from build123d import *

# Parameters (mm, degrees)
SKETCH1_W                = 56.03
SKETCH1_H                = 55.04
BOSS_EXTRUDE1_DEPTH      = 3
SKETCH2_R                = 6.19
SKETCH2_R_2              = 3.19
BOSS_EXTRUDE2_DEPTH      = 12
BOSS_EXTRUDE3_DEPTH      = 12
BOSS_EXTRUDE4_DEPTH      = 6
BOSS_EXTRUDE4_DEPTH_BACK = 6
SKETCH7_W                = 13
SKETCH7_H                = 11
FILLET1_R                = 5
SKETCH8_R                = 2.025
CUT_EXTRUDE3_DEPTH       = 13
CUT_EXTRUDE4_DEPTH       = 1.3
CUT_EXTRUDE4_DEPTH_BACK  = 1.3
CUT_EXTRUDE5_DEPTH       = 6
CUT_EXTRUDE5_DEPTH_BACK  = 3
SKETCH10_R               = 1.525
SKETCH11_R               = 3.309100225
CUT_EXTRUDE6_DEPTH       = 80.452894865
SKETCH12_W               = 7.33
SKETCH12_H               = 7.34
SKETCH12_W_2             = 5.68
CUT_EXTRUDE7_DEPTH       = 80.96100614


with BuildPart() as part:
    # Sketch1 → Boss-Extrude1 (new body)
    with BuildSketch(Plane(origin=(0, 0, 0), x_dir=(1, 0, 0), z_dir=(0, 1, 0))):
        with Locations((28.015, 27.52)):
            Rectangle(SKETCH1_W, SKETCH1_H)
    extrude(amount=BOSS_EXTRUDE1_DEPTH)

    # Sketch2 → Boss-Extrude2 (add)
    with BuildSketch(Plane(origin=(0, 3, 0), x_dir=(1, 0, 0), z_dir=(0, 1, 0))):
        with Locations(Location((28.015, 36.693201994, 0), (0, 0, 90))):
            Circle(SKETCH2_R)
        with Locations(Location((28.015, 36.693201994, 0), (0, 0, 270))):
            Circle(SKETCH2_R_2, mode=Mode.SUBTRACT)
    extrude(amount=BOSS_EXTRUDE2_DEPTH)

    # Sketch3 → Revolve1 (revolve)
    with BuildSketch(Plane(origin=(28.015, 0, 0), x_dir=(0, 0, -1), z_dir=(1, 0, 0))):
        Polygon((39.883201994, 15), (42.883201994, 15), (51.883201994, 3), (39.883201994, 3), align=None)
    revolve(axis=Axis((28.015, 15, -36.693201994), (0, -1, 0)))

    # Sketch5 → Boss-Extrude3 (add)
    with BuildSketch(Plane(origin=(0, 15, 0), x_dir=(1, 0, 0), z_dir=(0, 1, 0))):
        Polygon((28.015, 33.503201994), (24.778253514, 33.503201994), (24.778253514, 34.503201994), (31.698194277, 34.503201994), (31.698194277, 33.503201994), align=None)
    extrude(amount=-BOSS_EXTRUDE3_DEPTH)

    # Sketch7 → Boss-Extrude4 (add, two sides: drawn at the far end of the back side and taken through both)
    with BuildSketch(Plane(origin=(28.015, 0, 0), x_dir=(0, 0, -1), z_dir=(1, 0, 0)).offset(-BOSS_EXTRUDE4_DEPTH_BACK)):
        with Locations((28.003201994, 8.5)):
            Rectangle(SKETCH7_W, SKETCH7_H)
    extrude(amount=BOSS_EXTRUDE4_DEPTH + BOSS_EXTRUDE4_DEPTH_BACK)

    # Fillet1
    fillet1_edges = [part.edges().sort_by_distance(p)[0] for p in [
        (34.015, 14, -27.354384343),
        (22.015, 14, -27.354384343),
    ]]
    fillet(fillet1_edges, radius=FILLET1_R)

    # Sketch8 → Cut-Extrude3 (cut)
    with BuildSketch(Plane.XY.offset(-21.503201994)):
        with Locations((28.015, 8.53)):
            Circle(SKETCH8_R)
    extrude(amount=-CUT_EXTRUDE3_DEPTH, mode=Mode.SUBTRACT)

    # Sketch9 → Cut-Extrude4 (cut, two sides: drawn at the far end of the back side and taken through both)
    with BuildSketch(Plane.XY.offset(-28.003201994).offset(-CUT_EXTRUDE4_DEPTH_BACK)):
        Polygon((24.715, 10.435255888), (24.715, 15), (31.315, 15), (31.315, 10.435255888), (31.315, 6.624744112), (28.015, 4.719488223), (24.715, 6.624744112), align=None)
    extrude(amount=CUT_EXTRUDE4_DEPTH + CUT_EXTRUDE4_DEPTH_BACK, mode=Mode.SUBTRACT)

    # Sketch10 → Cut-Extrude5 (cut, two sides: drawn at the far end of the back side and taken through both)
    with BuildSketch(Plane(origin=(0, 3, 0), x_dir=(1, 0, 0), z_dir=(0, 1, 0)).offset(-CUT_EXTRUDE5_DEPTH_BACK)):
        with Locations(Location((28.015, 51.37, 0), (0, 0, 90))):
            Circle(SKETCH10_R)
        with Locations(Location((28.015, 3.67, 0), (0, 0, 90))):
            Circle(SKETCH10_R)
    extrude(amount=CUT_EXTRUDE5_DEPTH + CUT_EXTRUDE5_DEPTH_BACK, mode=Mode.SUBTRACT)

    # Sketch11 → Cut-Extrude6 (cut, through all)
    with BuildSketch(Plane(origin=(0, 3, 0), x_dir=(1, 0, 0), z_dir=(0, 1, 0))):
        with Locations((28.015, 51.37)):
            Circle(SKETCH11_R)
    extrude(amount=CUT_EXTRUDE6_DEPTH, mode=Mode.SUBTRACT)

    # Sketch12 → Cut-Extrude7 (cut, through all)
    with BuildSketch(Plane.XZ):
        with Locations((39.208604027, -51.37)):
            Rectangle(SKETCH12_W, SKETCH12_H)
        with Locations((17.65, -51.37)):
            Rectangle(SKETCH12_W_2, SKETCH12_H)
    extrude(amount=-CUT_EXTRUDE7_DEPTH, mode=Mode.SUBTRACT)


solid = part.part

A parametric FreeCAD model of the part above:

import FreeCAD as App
import Part
import Sketcher
Q = App.Units.Quantity


def edges_at(feature, points):
    """Names of the edges that pass closest to the given points."""
    edges = feature.Shape.Edges
    near = lambda p: min(range(len(edges)), key=lambda i: edges[i].distToShape(Part.Vertex(*p))[0])
    return sorted({f"Edge{near(p) + 1}" for p in points})

doc = App.newDocument("Part")
body = doc.addObject("PartDesign::Body", "Body")

# Sketch on XZ plane
sketch1 = body.newObject("Sketcher::SketchObject", "Sketch")
sketch1.AttachmentSupport = (doc.getObject("XZ_Plane"), [""])
sketch1.MapMode = "FlatFace"
sketch1.addGeometry([
    Part.LineSegment(App.Vector(0, -55, 0), App.Vector(0, 0, 0)),
    Part.LineSegment(App.Vector(0, 0, 0), App.Vector(56, 0, 0)),
    Part.LineSegment(App.Vector(56, 0, 0), App.Vector(56, -55, 0)),
    Part.LineSegment(App.Vector(56, -55, 0), App.Vector(0, -55, 0)),
], False)
sketch1.addConstraint([
    Sketcher.Constraint("Coincident", 0, 2, 1, 1),
    Sketcher.Constraint("Coincident", 1, 2, 2, 1),
    Sketcher.Constraint("Coincident", 2, 2, 3, 1),
    Sketcher.Constraint("Coincident", 3, 2, 0, 1),
    Sketcher.Constraint("Vertical", 0),
    Sketcher.Constraint("Horizontal", 1),
    Sketcher.Constraint("Vertical", 2),
    Sketcher.Constraint("Horizontal", 3),
    Sketcher.Constraint("Coincident", 0, 2, -1, 1),
    Sketcher.Constraint("DistanceX", 1, 1, 1, 2, Q("56.03 mm")),
    Sketcher.Constraint("DistanceY", 0, 1, 0, 2, Q("55.04 mm")),
])
pad1 = body.newObject("PartDesign::Pad", "Pad")
pad1.Profile = sketch1
pad1.Length = 3
pad1.Reversed = True

# Sketch on XZ plane
sketch2 = body.newObject("Sketcher::SketchObject", "Sketch001")
sketch2.AttachmentSupport = (doc.getObject("XZ_Plane"), [""])
sketch2.MapMode = "FlatFace"
sketch2.AttachmentOffset = App.Placement(App.Vector(0, 0, -3), App.Rotation())
sketch2.addGeometry([
    Part.Circle(App.Vector(28, -36.7, 0), App.Vector(0, 0, 1), 6.2),
    Part.Circle(App.Vector(28, -36.7, 0), App.Vector(0, 0, 1), 3.2),
], False)
sketch2.addConstraint([
    Sketcher.Constraint("Coincident", 1, 3, 0, 3),
    Sketcher.Constraint("Diameter", 0, Q("12.38 mm")),
    Sketcher.Constraint("Diameter", 1, Q("6.38 mm")),
    Sketcher.Constraint("DistanceX", -1, 1, 0, 3, Q("28.015 mm")),
    Sketcher.Constraint("DistanceY", 0, 3, -1, 1, Q("36.693202 mm")),
])
pad2 = body.newObject("PartDesign::Pad", "Pad001")
pad2.Profile = sketch2
pad2.Length = 12
pad2.Reversed = True

# Sketch on YZ plane
sketch3 = body.newObject("Sketcher::SketchObject", "Sketch002")
sketch3.AttachmentSupport = (doc.getObject("YZ_Plane"), [""])
sketch3.MapMode = "FlatFace"
sketch3.AttachmentOffset = App.Placement(App.Vector(0, 0, 28.015), App.Rotation())
sketch3.addGeometry([
    Part.LineSegment(App.Vector(15, -42.9, 0), App.Vector(15, -39.9, 0)),
    Part.LineSegment(App.Vector(15, -39.9, 0), App.Vector(3, -39.9, 0)),
    Part.LineSegment(App.Vector(3, -39.9, 0), App.Vector(3, -51.9, 0)),
    Part.LineSegment(App.Vector(3, -51.9, 0), App.Vector(15, -42.9, 0)),
], False)
sketch3.addGeometry(Part.LineSegment(App.Vector(15, -36.7, 0), App.Vector(3, -36.7, 0)), True)  # axis
sketch3.addConstraint([
    Sketcher.Constraint("Coincident", 0, 2, 1, 1),
    Sketcher.Constraint("Coincident", 1, 2, 2, 1),
    Sketcher.Constraint("Coincident", 2, 2, 3, 1),
    Sketcher.Constraint("Coincident", 3, 2, 0, 1),
    Sketcher.Constraint("Vertical", 0),
    Sketcher.Constraint("Horizontal", 1),
    Sketcher.Constraint("Vertical", 2),
    Sketcher.Constraint("Horizontal", 4),
    Sketcher.Constraint("Vertical", 3, 2, 4, 1),
    Sketcher.Constraint("Vertical", 2, 2, 4, 2),
    Sketcher.Constraint("Equal", 4, 2),
    Sketcher.Constraint("DistanceX", 1, 2, 1, 1, Q("12 mm")),
    Sketcher.Constraint("DistanceY", 0, 1, 0, 2, Q("3 mm")),
    Sketcher.Constraint("DistanceX", -1, 1, 0, 2, Q("15 mm")),
    Sketcher.Constraint("DistanceY", 0, 2, 4, 1, Q("3.19 mm")),
    Sketcher.Constraint("DistanceY", 0, 2, -1, 1, Q("39.883202 mm")),
])
revolution = body.newObject("PartDesign::Revolution", "Revolution")
revolution.Profile = sketch3
revolution.ReferenceAxis = (sketch3, ["Axis0"])
revolution.Angle = 360

# Sketch on XZ plane
sketch4 = body.newObject("Sketcher::SketchObject", "Sketch003")
sketch4.AttachmentSupport = (doc.getObject("XZ_Plane"), [""])
sketch4.MapMode = "FlatFace"
sketch4.AttachmentOffset = App.Placement(App.Vector(0, 0, -15), App.Rotation())
sketch4.addGeometry([
    Part.LineSegment(App.Vector(24.8, -33.5, 0), App.Vector(31.7, -33.5, 0)),
    Part.LineSegment(App.Vector(31.7, -33.5, 0), App.Vector(31.7, -34.5, 0)),
    Part.LineSegment(App.Vector(31.7, -34.5, 0), App.Vector(24.8, -34.5, 0)),
    Part.LineSegment(App.Vector(24.8, -34.5, 0), App.Vector(24.8, -33.5, 0)),
], False)
sketch4.addConstraint([
    Sketcher.Constraint("Coincident", 0, 2, 1, 1),
    Sketcher.Constraint("Coincident", 1, 2, 2, 1),
    Sketcher.Constraint("Coincident", 2, 2, 3, 1),
    Sketcher.Constraint("Coincident", 3, 2, 0, 1),
    Sketcher.Constraint("Horizontal", 0),
    Sketcher.Constraint("Vertical", 1),
    Sketcher.Constraint("Horizontal", 2),
    Sketcher.Constraint("Vertical", 3),
    Sketcher.Constraint("DistanceY", 1, 2, 1, 1, Q("1 mm")),
    Sketcher.Constraint("DistanceX", 0, 1, 0, 2, Q("6.919941 mm")),
    Sketcher.Constraint("DistanceY", 0, 2, -1, 1, Q("33.503202 mm")),
    Sketcher.Constraint("DistanceX", -1, 1, 0, 2, Q("31.698194 mm")),
])
pad3 = body.newObject("PartDesign::Pad", "Pad002")
pad3.Profile = sketch4
pad3.Length = 12

# Sketch on YZ plane
sketch5 = body.newObject("Sketcher::SketchObject", "Sketch004")
sketch5.AttachmentSupport = (doc.getObject("YZ_Plane"), [""])
sketch5.MapMode = "FlatFace"
sketch5.AttachmentOffset = App.Placement(App.Vector(0, 0, 28.015), App.Rotation())
sketch5.addGeometry([
    Part.LineSegment(App.Vector(14, -22, 0), App.Vector(3, -22, 0)),
    Part.LineSegment(App.Vector(3, -22, 0), App.Vector(3, -35, 0)),
    Part.LineSegment(App.Vector(3, -35, 0), App.Vector(14, -35, 0)),
    Part.LineSegment(App.Vector(14, -35, 0), App.Vector(14, -22, 0)),
], False)
sketch5.addConstraint([
    Sketcher.Constraint("Coincident", 0, 2, 1, 1),
    Sketcher.Constraint("Coincident", 1, 2, 2, 1),
    Sketcher.Constraint("Coincident", 2, 2, 3, 1),
    Sketcher.Constraint("Coincident", 3, 2, 0, 1),
    Sketcher.Constraint("Horizontal", 0),
    Sketcher.Constraint("Vertical", 1),
    Sketcher.Constraint("Horizontal", 2),
    Sketcher.Constraint("Vertical", 3),
    Sketcher.Constraint("DistanceX", 0, 2, 0, 1, Q("11 mm")),
    Sketcher.Constraint("DistanceY", 1, 2, 1, 1, Q("13 mm")),
    Sketcher.Constraint("DistanceX", -1, 1, 0, 2, Q("3 mm")),
    Sketcher.Constraint("DistanceY", 0, 2, -1, 1, Q("21.503202 mm")),
])
pad4 = body.newObject("PartDesign::Pad", "Pad003")
pad4.Profile = sketch5
pad4.Type = "TwoLengths"
pad4.Length = 6
pad4.Length2 = 6
doc.recompute()

fillet = body.newObject("PartDesign::Fillet", "Fillet")
fillet.Base = (pad4, edges_at(pad4, [(34.015, 14, -27.354), (22.015, 14, -27.354)]))
fillet.Radius = 5

# Sketch on XY plane
sketch6 = body.newObject("Sketcher::SketchObject", "Sketch005")
sketch6.AttachmentSupport = (doc.getObject("XY_Plane"), [""])
sketch6.MapMode = "FlatFace"
sketch6.AttachmentOffset = App.Placement(App.Vector(0, 0, -21.503202), App.Rotation())
sketch6.addGeometry(Part.Circle(App.Vector(28, 8.5, 0), App.Vector(0, 0, 1), 2), False)
sketch6.addConstraint([
    Sketcher.Constraint("Diameter", 0, Q("4.05 mm")),
    Sketcher.Constraint("DistanceY", -1, 1, 0, 3, Q("8.53 mm")),
    Sketcher.Constraint("DistanceX", -1, 1, 0, 3, Q("28.015 mm")),
])
pocket1 = body.newObject("PartDesign::Pocket", "Pocket")
pocket1.Profile = sketch6
pocket1.Length = 13

# Sketch on XY plane
sketch7 = body.newObject("Sketcher::SketchObject", "Sketch006")
sketch7.AttachmentSupport = (doc.getObject("XY_Plane"), [""])
sketch7.MapMode = "FlatFace"
sketch7.AttachmentOffset = App.Placement(App.Vector(0, 0, -28.003202), App.Rotation())
sketch7.addGeometry([
    Part.LineSegment(App.Vector(24.7, 15, 0), App.Vector(24.7, 6.6, 0)),  # 0
    Part.LineSegment(App.Vector(24.7, 6.6, 0), App.Vector(28, 4.7, 0)),  # 1
    Part.LineSegment(App.Vector(28, 4.7, 0), App.Vector(31.3, 6.6, 0)),  # 2
    Part.LineSegment(App.Vector(31.3, 6.6, 0), App.Vector(31.3, 15, 0)),  # 3
    Part.LineSegment(App.Vector(31.3, 15, 0), App.Vector(24.7, 15, 0)),  # 4
], False)
sketch7.addConstraint([
    Sketcher.Constraint("Coincident", 0, 2, 1, 1),
    Sketcher.Constraint("Coincident", 1, 2, 2, 1),
    Sketcher.Constraint("Coincident", 2, 2, 3, 1),
    Sketcher.Constraint("Coincident", 3, 2, 4, 1),
    Sketcher.Constraint("Coincident", 4, 2, 0, 1),
    Sketcher.Constraint("Vertical", 0),
    Sketcher.Constraint("Vertical", 3),
    Sketcher.Constraint("Horizontal", 4),
    Sketcher.Constraint("Horizontal", 0, 2, 2, 2),
    Sketcher.Constraint("Equal", 1, 2),
    Sketcher.Constraint("Angle", 1, Q("-30 deg")),
    Sketcher.Constraint("DistanceX", 4, 2, 4, 1, Q("6.6 mm")),
    Sketcher.Constraint("DistanceY", -1, 1, 3, 2, Q("15 mm")),
    Sketcher.Constraint("DistanceX", -1, 1, 0, 2, Q("24.715 mm")),
    Sketcher.Constraint("DistanceY", 0, 2, 0, 1, Q("8.375256 mm")),
])
pocket2 = body.newObject("PartDesign::Pocket", "Pocket001")
pocket2.Profile = sketch7
pocket2.Type = "TwoLengths"
pocket2.Length = 1.3
pocket2.Length2 = 1.3
pocket2.Reversed = True

# Sketch on XZ plane
sketch8 = body.newObject("Sketcher::SketchObject", "Sketch007")
sketch8.AttachmentSupport = (doc.getObject("XZ_Plane"), [""])
sketch8.MapMode = "FlatFace"
sketch8.AttachmentOffset = App.Placement(App.Vector(0, 0, -3), App.Rotation())
sketch8.addGeometry([
    Part.Circle(App.Vector(28, -51.4, 0), App.Vector(0, 0, 1), 1.5),
    Part.Circle(App.Vector(28, -3.7, 0), App.Vector(0, 0, 1), 1.5),
], False)
sketch8.addConstraint([
    Sketcher.Constraint("Equal", 0, 1),
    Sketcher.Constraint("Vertical", 0, 3, 1, 3),
    Sketcher.Constraint("Diameter", 0, Q("3.05 mm")),
    Sketcher.Constraint("DistanceY", 0, 3, 1, 3, Q("47.7 mm")),
    Sketcher.Constraint("DistanceY", 0, 3, -1, 1, Q("51.37 mm")),
    Sketcher.Constraint("DistanceX", -1, 1, 0, 3, Q("28.015 mm")),
])
pocket3 = body.newObject("PartDesign::Pocket", "Pocket002")
pocket3.Profile = sketch8
pocket3.Type = "ThroughAll"
pocket3.Midplane = True

# Sketch on XZ plane
sketch9 = body.newObject("Sketcher::SketchObject", "Sketch008")
sketch9.AttachmentSupport = (doc.getObject("XZ_Plane"), [""])
sketch9.MapMode = "FlatFace"
sketch9.AttachmentOffset = App.Placement(App.Vector(0, 0, -3), App.Rotation())
sketch9.addGeometry(Part.Circle(App.Vector(28, -51.4, 0), App.Vector(0, 0, 1), 3.3), False)
sketch9.addConstraint([
    Sketcher.Constraint("Diameter", 0, Q("6.6182 mm")),
    Sketcher.Constraint("DistanceY", 0, 3, -1, 1, Q("51.37 mm")),
    Sketcher.Constraint("DistanceX", -1, 1, 0, 3, Q("28.015 mm")),
])
pocket4 = body.newObject("PartDesign::Pocket", "Pocket003")
pocket4.Profile = sketch9
pocket4.Type = "ThroughAll"

# Sketch on XZ plane
sketch10 = body.newObject("Sketcher::SketchObject", "Sketch009")
sketch10.AttachmentSupport = (doc.getObject("XZ_Plane"), [""])
sketch10.MapMode = "FlatFace"
sketch10.addGeometry([
    Part.LineSegment(App.Vector(36, -48, 0), App.Vector(36, -55, 0)),  # 0
    Part.LineSegment(App.Vector(36, -55, 0), App.Vector(43, -55, 0)),  # 1
    Part.LineSegment(App.Vector(43, -55, 0), App.Vector(43, -48, 0)),  # 2
    Part.LineSegment(App.Vector(43, -48, 0), App.Vector(36, -48, 0)),  # 3
    Part.LineSegment(App.Vector(15, -48, 0), App.Vector(15, -55, 0)),  # 4
    Part.LineSegment(App.Vector(15, -55, 0), App.Vector(20, -55, 0)),  # 5
    Part.LineSegment(App.Vector(20, -55, 0), App.Vector(20, -48, 0)),  # 6
    Part.LineSegment(App.Vector(20, -48, 0), App.Vector(15, -48, 0)),  # 7
], False)
sketch10.addConstraint([
    Sketcher.Constraint("Coincident", 0, 2, 1, 1),
    Sketcher.Constraint("Coincident", 1, 2, 2, 1),
    Sketcher.Constraint("Coincident", 2, 2, 3, 1),
    Sketcher.Constraint("Coincident", 3, 2, 0, 1),
    Sketcher.Constraint("Coincident", 4, 2, 5, 1),
    Sketcher.Constraint("Coincident", 5, 2, 6, 1),
    Sketcher.Constraint("Coincident", 6, 2, 7, 1),
    Sketcher.Constraint("Coincident", 7, 2, 4, 1),
    Sketcher.Constraint("Vertical", 0),
    Sketcher.Constraint("Horizontal", 1),
    Sketcher.Constraint("Vertical", 2),
    Sketcher.Constraint("Horizontal", 3),
    Sketcher.Constraint("Vertical", 4),
    Sketcher.Constraint("Horizontal", 5),
    Sketcher.Constraint("Vertical", 6),
    Sketcher.Constraint("Horizontal", 7),
    Sketcher.Constraint("Horizontal", 1, 2, 4, 2),
    Sketcher.Constraint("Horizontal", 3, 2, 6, 2),
    Sketcher.Constraint("DistanceX", 1, 1, 1, 2, Q("7.33 mm")),
    Sketcher.Constraint("DistanceX", 5, 1, 5, 2, Q("5.68 mm")),
    Sketcher.Constraint("DistanceY", 0, 2, 0, 1, Q("7.34 mm")),
    Sketcher.Constraint("DistanceY", 2, 2, -1, 1, Q("47.7 mm")),
    Sketcher.Constraint("DistanceX", -1, 1, 4, 2, Q("14.81 mm")),
    Sketcher.Constraint("DistanceX", -1, 1, 0, 2, Q("35.543604 mm")),
])
pocket5 = body.newObject("PartDesign::Pocket", "Pocket004")
pocket5.Profile = sketch10
pocket5.Type = "ThroughAll"

doc.recompute()
